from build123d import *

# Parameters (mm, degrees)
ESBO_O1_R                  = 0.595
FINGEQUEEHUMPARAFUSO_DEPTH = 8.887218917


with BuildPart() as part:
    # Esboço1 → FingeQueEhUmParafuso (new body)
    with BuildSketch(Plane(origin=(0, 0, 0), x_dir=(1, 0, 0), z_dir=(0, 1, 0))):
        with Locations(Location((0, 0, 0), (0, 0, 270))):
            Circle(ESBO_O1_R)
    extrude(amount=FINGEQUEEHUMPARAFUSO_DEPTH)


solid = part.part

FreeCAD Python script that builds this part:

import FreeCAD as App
import Part
import Sketcher
from FreeCAD import Vector

doc = App.newDocument("Part")
body = doc.addObject("PartDesign::Body", "Body")

sketch1 = body.newObject("Sketcher::SketchObject", "Sketch")
sketch1.AttachmentSupport = (doc.getObject("XZ_Plane"), [""])
sketch1.MapMode = "FlatFace"
sketch1.addGeometry(Part.Circle(Vector(0, 0, 0), Vector(0, 0, 1), 0.595), False)
sketch1.addConstraint([
    Sketcher.Constraint("Coincident", 0, 3, -1, 1),
    Sketcher.Constraint("Diameter", 0, 1.19),
])
pad1 = body.newObject("PartDesign::Pad", "Pad")
pad1.Profile = sketch1
pad1.Length = 8.887219
pad1.Reversed = True

doc.recompute()
